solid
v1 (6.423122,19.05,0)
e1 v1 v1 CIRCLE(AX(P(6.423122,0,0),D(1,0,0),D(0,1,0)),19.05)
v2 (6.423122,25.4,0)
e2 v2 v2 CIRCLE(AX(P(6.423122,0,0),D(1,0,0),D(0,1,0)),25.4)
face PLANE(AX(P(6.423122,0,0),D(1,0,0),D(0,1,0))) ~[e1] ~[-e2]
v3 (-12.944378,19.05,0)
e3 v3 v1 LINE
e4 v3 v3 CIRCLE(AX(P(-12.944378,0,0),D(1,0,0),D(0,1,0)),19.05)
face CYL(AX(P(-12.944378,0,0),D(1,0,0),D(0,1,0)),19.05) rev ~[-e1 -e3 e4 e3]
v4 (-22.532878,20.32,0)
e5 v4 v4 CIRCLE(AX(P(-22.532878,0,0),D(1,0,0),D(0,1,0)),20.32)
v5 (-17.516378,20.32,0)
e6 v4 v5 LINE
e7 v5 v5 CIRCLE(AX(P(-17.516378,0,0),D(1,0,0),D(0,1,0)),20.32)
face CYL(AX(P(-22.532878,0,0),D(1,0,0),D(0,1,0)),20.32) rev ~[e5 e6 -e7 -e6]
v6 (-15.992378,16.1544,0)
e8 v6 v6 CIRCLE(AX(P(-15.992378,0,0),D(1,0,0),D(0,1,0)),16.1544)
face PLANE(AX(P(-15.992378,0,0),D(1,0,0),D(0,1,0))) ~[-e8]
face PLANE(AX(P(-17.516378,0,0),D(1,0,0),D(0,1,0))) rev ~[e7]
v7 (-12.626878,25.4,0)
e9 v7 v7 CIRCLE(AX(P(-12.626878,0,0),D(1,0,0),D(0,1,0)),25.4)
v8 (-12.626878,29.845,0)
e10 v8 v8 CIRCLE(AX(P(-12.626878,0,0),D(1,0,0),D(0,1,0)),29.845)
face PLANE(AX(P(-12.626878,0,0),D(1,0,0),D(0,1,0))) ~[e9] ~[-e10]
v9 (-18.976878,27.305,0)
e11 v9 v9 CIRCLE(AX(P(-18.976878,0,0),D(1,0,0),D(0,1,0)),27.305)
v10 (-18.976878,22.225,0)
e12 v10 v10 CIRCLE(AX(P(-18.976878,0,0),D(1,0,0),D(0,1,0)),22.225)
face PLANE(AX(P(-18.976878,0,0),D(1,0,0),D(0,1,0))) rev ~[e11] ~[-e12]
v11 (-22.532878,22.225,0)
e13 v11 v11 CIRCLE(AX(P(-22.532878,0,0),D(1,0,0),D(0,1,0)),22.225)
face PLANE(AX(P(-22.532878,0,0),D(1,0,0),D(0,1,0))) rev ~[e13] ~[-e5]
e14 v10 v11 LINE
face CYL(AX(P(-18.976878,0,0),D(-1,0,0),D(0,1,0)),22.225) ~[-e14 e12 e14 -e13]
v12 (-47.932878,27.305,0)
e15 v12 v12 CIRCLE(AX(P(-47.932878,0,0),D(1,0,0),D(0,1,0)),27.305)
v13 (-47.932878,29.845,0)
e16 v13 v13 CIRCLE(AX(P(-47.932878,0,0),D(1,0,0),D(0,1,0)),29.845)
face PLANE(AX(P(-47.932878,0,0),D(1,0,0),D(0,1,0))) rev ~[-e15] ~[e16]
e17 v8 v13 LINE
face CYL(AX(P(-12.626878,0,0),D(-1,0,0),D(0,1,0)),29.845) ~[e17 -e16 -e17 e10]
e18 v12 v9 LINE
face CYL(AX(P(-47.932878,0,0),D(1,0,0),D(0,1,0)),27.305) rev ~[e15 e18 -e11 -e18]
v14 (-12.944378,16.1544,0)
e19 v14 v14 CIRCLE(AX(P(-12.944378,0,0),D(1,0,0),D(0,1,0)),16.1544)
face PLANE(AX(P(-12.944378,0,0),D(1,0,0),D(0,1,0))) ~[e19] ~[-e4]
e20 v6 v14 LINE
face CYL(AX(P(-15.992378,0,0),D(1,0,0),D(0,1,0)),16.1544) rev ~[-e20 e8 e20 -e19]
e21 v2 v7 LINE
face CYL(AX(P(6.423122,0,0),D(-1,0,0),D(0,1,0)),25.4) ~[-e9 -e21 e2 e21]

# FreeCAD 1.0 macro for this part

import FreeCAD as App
import Part
import Sketcher
from FreeCAD import Vector
Q = App.Units.Quantity


def add_polygon(sketch, points):
    """Adds a closed chain of lines whose ends are joined by coincident constraints."""
    first, n = sketch.GeometryCount, len(points)
    for a, b in zip(points, points[1:] + points[:1]):
        sketch.addGeometry(Part.LineSegment(App.Vector(*a, 0), App.Vector(*b, 0)), False)
    for i in range(n):
        sketch.addConstraint(Sketcher.Constraint("Coincident", first + i, 2, first + (i + 1) % n, 1))

doc = App.newDocument("Part")
body = doc.addObject("PartDesign::Body", "Body")

sketch1 = body.newObject("Sketcher::SketchObject", "Sketch")
sketch1.AttachmentSupport = (doc.getObject("XY_Plane"), [""])
sketch1.MapMode = "FlatFace"
add_polygon(sketch1, [(-17.5, 20.3), (-17.5, 0), (-16, 0), (-16, 16.2), (-12.9, 16.2), (-12.9, 19.1), (6.4, 19.1), (6.4, 25.4), (-12.6, 25.4), (-12.6, 29.8), (-47.9, 29.8), (-47.9, 27.3), (-19, 27.3), (-19, 22.2), (-22.5, 22.2), (-22.5, 20.3)])
sketch1.addConstraint([
    Sketcher.Constraint("Vertical", 0),
    Sketcher.Constraint("Horizontal", 1),
    Sketcher.Constraint("Vertical", 2),
    Sketcher.Constraint("Horizontal", 3),
    Sketcher.Constraint("Vertical", 4),
    Sketcher.Constraint("Horizontal", 5),
    Sketcher.Constraint("Vertical", 6),
    Sketcher.Constraint("Horizontal", 7),
    Sketcher.Constraint("Vertical", 8),
    Sketcher.Constraint("Horizontal", 9),
    Sketcher.Constraint("Vertical", 10),
    Sketcher.Constraint("Horizontal", 11),
    Sketcher.Constraint("Vertical", 12),
    Sketcher.Constraint("Horizontal", 13),
    Sketcher.Constraint("Vertical", 14),
    Sketcher.Constraint("Horizontal", 15),
    Sketcher.Constraint("PointOnObject", 0, 2, -1),
    Sketcher.Constraint("DistanceY", 0, 2, 0, 1, Q("0.8 in")),
    Sketcher.Constraint("DistanceY", 10, 2, 10, 1, Q("0.1 in")),
    Sketcher.Constraint("DistanceY", 12, 2, 12, 1, Q("0.2 in")),
    Sketcher.Constraint("DistanceY", -1, 1, 6, 2, Q("1 in")),
    Sketcher.Constraint("DistanceX", 1, 1, 1, 2, Q("0.06 in")),
    Sketcher.Constraint("DistanceX", 3, 1, 3, 2, Q("0.12 in")),
    Sketcher.Constraint("DistanceX", 7, 2, 7, 1, Q("0.75 in")),
    Sketcher.Constraint("DistanceX", 9, 2, 9, 1, Q("1.39 in")),
    Sketcher.Constraint("DistanceX", 11, 1, 11, 2, Q("1.14 in")),
    Sketcher.Constraint("DistanceX", 13, 2, 13, 1, Q("0.14 in")),
    Sketcher.Constraint("DistanceY", 6, 1, 6, 2, Q("0.25 in")),
    Sketcher.Constraint("DistanceY", 2, 1, 2, 2, Q("0.636 in")),
    Sketcher.Constraint("DistanceY", 8, 1, 8, 2, Q("0.175 in")),
    Sketcher.Constraint("DistanceX", 5, 1, 5, 2, Q("0.7625 in")),
    Sketcher.Constraint("DistanceX", 9, 2, -1, 1, 47.932878),
])
revolution = body.newObject("PartDesign::Revolution", "Revolution")
revolution.Profile = sketch1
revolution.ReferenceAxis = (sketch1, ["H_Axis"])
revolution.Angle = 360

doc.recompute()
